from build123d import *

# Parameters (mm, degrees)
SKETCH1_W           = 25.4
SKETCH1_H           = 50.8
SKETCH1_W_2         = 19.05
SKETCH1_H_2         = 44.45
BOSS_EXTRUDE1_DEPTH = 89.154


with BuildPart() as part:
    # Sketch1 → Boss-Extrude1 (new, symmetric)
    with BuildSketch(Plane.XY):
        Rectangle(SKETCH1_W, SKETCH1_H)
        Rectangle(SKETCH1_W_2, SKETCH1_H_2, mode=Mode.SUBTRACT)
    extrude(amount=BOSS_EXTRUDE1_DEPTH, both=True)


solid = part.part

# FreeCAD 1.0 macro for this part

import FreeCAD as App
import Part
import Sketcher
Q = App.Units.Quantity


def add_polygon(sketch, points):
    """Adds a closed chain of lines whose ends are joined by coincident constraints."""
    first, n = sketch.GeometryCount, len(points)
    for a, b in zip(points, points[1:] + points[:1]):
        sketch.addGeometry(Part.LineSegment(App.Vector(*a, 0), App.Vector(*b, 0)), False)
    for i in range(n):
        sketch.addConstraint(Sketcher.Constraint("Coincident", first + i, 2, first + (i + 1) % n, 1))

doc = App.newDocument("Part")
body = doc.addObject("PartDesign::Body", "Body")

sketch1 = body.newObject("Sketcher::SketchObject", "Sketch")
sketch1.AttachmentSupport = (doc.getObject("XY_Plane"), [""])
sketch1.MapMode = "FlatFace"
add_polygon(sketch1, [(-13, 25), (-13, -25), (13, -25), (13, 25)])
add_polygon(sketch1, [(10, -22), (-10, -22), (-10, 22), (10, 22)])
sketch1.addConstraint([
    Sketcher.Constraint("Vertical", 0),
    Sketcher.Constraint("Horizontal", 1),
    Sketcher.Constraint("Vertical", 2),
    Sketcher.Constraint("Horizontal", 3),
    Sketcher.Constraint("Horizontal", 4),
    Sketcher.Constraint("Vertical", 5),
    Sketcher.Constraint("Horizontal", 6),
    Sketcher.Constraint("Vertical", 7),
    Sketcher.Constraint("Symmetric", 0, 2, 2, 2, -1, 1),
    Sketcher.Constraint("Symmetric", 4, 2, 6, 2, -1, 1),
    Sketcher.Constraint("DistanceX", 1, 1, 1, 2, Q("1 in")),
    Sketcher.Constraint("DistanceY", 0, 2, 0, 1, Q("2 in")),
    Sketcher.Constraint("DistanceX", 4, 2, 4, 1, Q("0.75 in")),
    Sketcher.Constraint("DistanceY", 5, 1, 5, 2, Q("1.75 in")),
])
pad1 = body.newObject("PartDesign::Pad", "Pad")
pad1.Profile = sketch1
pad1.Length = Q("7.02 in")
pad1.Midplane = True

doc.recompute()
